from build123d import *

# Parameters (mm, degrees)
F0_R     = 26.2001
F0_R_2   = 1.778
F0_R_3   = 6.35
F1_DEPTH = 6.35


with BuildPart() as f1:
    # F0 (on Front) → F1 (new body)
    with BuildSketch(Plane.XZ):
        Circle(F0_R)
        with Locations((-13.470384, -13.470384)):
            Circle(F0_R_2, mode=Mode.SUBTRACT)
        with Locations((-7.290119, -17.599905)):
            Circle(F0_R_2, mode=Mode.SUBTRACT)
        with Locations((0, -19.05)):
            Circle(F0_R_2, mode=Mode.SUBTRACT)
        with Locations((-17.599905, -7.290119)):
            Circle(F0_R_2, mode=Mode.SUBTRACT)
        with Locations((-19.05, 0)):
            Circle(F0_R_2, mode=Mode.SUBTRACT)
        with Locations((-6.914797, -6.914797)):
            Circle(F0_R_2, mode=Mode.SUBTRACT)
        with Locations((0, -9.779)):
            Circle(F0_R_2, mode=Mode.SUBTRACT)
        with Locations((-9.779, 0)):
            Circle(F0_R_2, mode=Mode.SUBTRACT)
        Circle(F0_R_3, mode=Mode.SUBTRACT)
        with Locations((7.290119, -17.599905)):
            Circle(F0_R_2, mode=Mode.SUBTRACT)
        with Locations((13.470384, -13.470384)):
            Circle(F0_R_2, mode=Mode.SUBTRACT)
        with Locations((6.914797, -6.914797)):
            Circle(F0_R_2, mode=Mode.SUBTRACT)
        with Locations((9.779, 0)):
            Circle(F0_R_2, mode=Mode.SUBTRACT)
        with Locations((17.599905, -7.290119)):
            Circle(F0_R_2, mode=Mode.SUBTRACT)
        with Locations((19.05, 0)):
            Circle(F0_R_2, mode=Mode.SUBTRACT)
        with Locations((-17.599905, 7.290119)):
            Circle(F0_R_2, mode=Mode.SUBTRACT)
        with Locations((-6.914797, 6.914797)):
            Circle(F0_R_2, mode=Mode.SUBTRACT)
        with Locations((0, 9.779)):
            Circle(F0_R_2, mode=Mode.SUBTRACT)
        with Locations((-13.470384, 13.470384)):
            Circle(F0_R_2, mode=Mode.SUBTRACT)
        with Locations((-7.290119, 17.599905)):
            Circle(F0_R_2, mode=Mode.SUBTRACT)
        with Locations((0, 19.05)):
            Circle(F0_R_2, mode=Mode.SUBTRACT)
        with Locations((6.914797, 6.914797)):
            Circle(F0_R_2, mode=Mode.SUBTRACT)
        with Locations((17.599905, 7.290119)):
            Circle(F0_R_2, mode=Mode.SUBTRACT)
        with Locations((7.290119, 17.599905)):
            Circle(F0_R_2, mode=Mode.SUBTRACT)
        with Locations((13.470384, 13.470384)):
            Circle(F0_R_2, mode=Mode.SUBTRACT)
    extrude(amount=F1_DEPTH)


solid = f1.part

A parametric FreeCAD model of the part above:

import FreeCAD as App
import Part
import Sketcher
from FreeCAD import Vector
Q = App.Units.Quantity

doc = App.newDocument("Part")
body = doc.addObject("PartDesign::Body", "Body")

# Sketch on XZ plane
sketch1 = doc.addObject("Sketcher::SketchObject", "Sketch")
body.addObject(sketch1)
sketch1.AttachmentSupport = (doc.XZ_Plane, [""])
sketch1.MapMode = "FlatFace"
sketch1.addGeometry(Part.Circle(Vector(0, 0, 0), Vector(0, 0, 1), 26.2), False)
sketch1.addGeometry(Part.Circle(Vector(-13.5, -13.5, 0), Vector(0, 0, 1), 1.8), False)
sketch1.addGeometry(Part.Circle(Vector(-7.3, -17.6, 0), Vector(0, 0, 1), 1.8), False)
sketch1.addGeometry(Part.Circle(Vector(-17.6, -7.3, 0), Vector(0, 0, 1), 1.8), False)
sketch1.addGeometry(Part.Circle(Vector(-6.9, -6.9, 0), Vector(0, 0, 1), 1.8), False)
sketch1.addGeometry(Part.Circle(Vector(0, -19.1, 0), Vector(0, 0, 1), 1.8), False)
sketch1.addGeometry(Part.Circle(Vector(7.3, -17.6, 0), Vector(0, 0, 1), 1.8), False)
sketch1.addGeometry(Part.Circle(Vector(13.5, -13.5, 0), Vector(0, 0, 1), 1.8), False)
sketch1.addGeometry(Part.Circle(Vector(0, -9.8, 0), Vector(0, 0, 1), 1.8), False)
sketch1.addGeometry(Part.Circle(Vector(6.9, -6.9, 0), Vector(0, 0, 1), 1.8), False)
sketch1.addGeometry(Part.Circle(Vector(17.6, -7.3, 0), Vector(0, 0, 1), 1.8), False)
sketch1.addGeometry(Part.Circle(Vector(-19.1, 0, 0), Vector(0, 0, 1), 1.8), False)
sketch1.addGeometry(Part.Circle(Vector(-17.6, 7.3, 0), Vector(0, 0, 1), 1.8), False)
sketch1.addGeometry(Part.Circle(Vector(-9.8, 0, 0), Vector(0, 0, 1), 1.8), False)
sketch1.addGeometry(Part.Circle(Vector(-6.9, 6.9, 0), Vector(0, 0, 1), 1.8), False)
sketch1.addGeometry(Part.Circle(Vector(-13.5, 13.5, 0), Vector(0, 0, 1), 1.8), False)
sketch1.addGeometry(Part.Circle(Vector(-7.3, 17.6, 0), Vector(0, 0, 1), 1.8), False)
sketch1.addGeometry(Part.Circle(Vector(0, 0, 0), Vector(0, 0, 1), 6.3), False)
sketch1.addGeometry(Part.Circle(Vector(9.8, 0, 0), Vector(0, 0, 1), 1.8), False)
sketch1.addGeometry(Part.Circle(Vector(0, 9.8, 0), Vector(0, 0, 1), 1.8), False)
sketch1.addGeometry(Part.Circle(Vector(6.9, 6.9, 0), Vector(0, 0, 1), 1.8), False)
sketch1.addGeometry(Part.Circle(Vector(19.1, 0, 0), Vector(0, 0, 1), 1.8), False)
sketch1.addGeometry(Part.Circle(Vector(17.6, 7.3, 0), Vector(0, 0, 1), 1.8), False)
sketch1.addGeometry(Part.Circle(Vector(0, 19.1, 0), Vector(0, 0, 1), 1.8), False)
sketch1.addGeometry(Part.Circle(Vector(7.3, 17.6, 0), Vector(0, 0, 1), 1.8), False)
sketch1.addGeometry(Part.Circle(Vector(13.5, 13.5, 0), Vector(0, 0, 1), 1.8), False)
sketch1.addConstraint(Sketcher.Constraint("Coincident", 0, 3, -1, 1))
sketch1.addConstraint(Sketcher.Constraint("Coincident", 17, 3, -1, 1))
sketch1.addConstraint(Sketcher.Constraint("Equal", 1, 2))
sketch1.addConstraint(Sketcher.Constraint("Equal", 2, 3))
sketch1.addConstraint(Sketcher.Constraint("Equal", 3, 4))
sketch1.addConstraint(Sketcher.Constraint("Equal", 4, 5))
sketch1.addConstraint(Sketcher.Constraint("Equal", 5, 6))
sketch1.addConstraint(Sketcher.Constraint("Equal", 6, 7))
sketch1.addConstraint(Sketcher.Constraint("Equal", 7, 8))
sketch1.addConstraint(Sketcher.Constraint("Equal", 8, 9))
sketch1.addConstraint(Sketcher.Constraint("Equal", 9, 10))
sketch1.addConstraint(Sketcher.Constraint("Equal", 10, 11))
sketch1.addConstraint(Sketcher.Constraint("Equal", 11, 12))
sketch1.addConstraint(Sketcher.Constraint("Equal", 12, 13))
sketch1.addConstraint(Sketcher.Constraint("Equal", 13, 14))
sketch1.addConstraint(Sketcher.Constraint("Equal", 14, 15))
sketch1.addConstraint(Sketcher.Constraint("Equal", 15, 16))
sketch1.addConstraint(Sketcher.Constraint("Equal", 16, 18))
sketch1.addConstraint(Sketcher.Constraint("Equal", 18, 19))
sketch1.addConstraint(Sketcher.Constraint("Equal", 19, 20))
sketch1.addConstraint(Sketcher.Constraint("Equal", 20, 21))
sketch1.addConstraint(Sketcher.Constraint("Equal", 21, 22))
sketch1.addConstraint(Sketcher.Constraint("Equal", 22, 23))
sketch1.addConstraint(Sketcher.Constraint("Equal", 23, 24))
sketch1.addConstraint(Sketcher.Constraint("Equal", 24, 25))
sketch1.addConstraint(Sketcher.Constraint("Symmetric", 10, 3, 12, 3, -1, 1))
sketch1.addConstraint(Sketcher.Constraint("Symmetric", 9, 3, 14, 3, -1, 1))
sketch1.addConstraint(Sketcher.Constraint("Symmetric", 7, 3, 15, 3, -1, 1))
sketch1.addConstraint(Sketcher.Constraint("Symmetric", 6, 3, 16, 3, -1, 1))
sketch1.addConstraint(Sketcher.Constraint("Symmetric", 13, 3, 18, 3, -1, 1))
sketch1.addConstraint(Sketcher.Constraint("Symmetric", 8, 3, 19, 3, -1, 1))
sketch1.addConstraint(Sketcher.Constraint("Symmetric", 4, 3, 20, 3, -1, 1))
sketch1.addConstraint(Sketcher.Constraint("Symmetric", 11, 3, 21, 3, -1, 1))
sketch1.addConstraint(Sketcher.Constraint("Symmetric", 3, 3, 22, 3, -1, 1))
sketch1.addConstraint(Sketcher.Constraint("Symmetric", 5, 3, 23, 3, -1, 1))
sketch1.addConstraint(Sketcher.Constraint("Symmetric", 2, 3, 24, 3, -1, 1))
sketch1.addConstraint(Sketcher.Constraint("Symmetric", 1, 3, 25, 3, -1, 1))
sketch1.addConstraint(Sketcher.Constraint("Symmetric", 2, 3, 6, 3, -2))
sketch1.addConstraint(Sketcher.Constraint("Symmetric", 1, 3, 7, 3, -2))
sketch1.addConstraint(Sketcher.Constraint("Symmetric", 4, 3, 9, 3, -2))
sketch1.addConstraint(Sketcher.Constraint("Symmetric", 3, 3, 10, 3, -2))
sketch1.addConstraint(Sketcher.Constraint("PointOnObject", 5, 3, -2))
sketch1.addConstraint(Sketcher.Constraint("PointOnObject", 8, 3, -2))
sketch1.addConstraint(Sketcher.Constraint("PointOnObject", 11, 3, -1))
sketch1.addConstraint(Sketcher.Constraint("PointOnObject", 13, 3, -1))
sketch1.addConstraint(Sketcher.Constraint("Diameter", 17, Q("0.5 in")))
sketch1.addConstraint(Sketcher.Constraint("Diameter", 1, Q("0.14 in")))
sketch1.addConstraint(Sketcher.Constraint("Diameter", 0, Q("2.063 in")))
sketch1.addConstraint(Sketcher.Constraint("DistanceY", 5, 3, -1, 1, Q("0.75 in")))
sketch1.addConstraint(Sketcher.Constraint("DistanceX", 11, 3, -1, 1, Q("0.75 in")))
sketch1.addConstraint(Sketcher.Constraint("DistanceY", 8, 3, -1, 1, Q("0.385 in")))
sketch1.addConstraint(Sketcher.Constraint("DistanceX", 13, 3, -1, 1, Q("0.385 in")))
sketch1.addConstraint(Sketcher.Constraint("DistanceX", 2, 3, -1, 1, Q("7.290119 mm")))
sketch1.addConstraint(Sketcher.Constraint("DistanceY", 3, 3, -1, 1, Q("7.290119 mm")))
sketch1.addConstraint(Sketcher.Constraint("DistanceY", 2, 3, 1, 3, Q("4.129521 mm")))
sketch1.addConstraint(Sketcher.Constraint("DistanceX", 3, 3, 1, 3, Q("4.129521 mm")))
sketch1.addConstraint(Sketcher.Constraint("DistanceX", 2, 3, 4, 3, Q("0.375322 mm")))
sketch1.addConstraint(Sketcher.Constraint("DistanceY", 3, 3, 4, 3, Q("0.375322 mm")))
sketch1.addConstraint(Sketcher.Constraint("DistanceX", 4, 3, 7, 3, Q("20.385181 mm")))
sketch1.addConstraint(Sketcher.Constraint("DistanceY", 1, 3, -1, 1, Q("13.470384 mm")))
pad1 = doc.addObject("PartDesign::Pad", "Pad")
body.addObject(pad1)
pad1.Profile = sketch1
pad1.Length = Q("0.25 in")

doc.recompute()
